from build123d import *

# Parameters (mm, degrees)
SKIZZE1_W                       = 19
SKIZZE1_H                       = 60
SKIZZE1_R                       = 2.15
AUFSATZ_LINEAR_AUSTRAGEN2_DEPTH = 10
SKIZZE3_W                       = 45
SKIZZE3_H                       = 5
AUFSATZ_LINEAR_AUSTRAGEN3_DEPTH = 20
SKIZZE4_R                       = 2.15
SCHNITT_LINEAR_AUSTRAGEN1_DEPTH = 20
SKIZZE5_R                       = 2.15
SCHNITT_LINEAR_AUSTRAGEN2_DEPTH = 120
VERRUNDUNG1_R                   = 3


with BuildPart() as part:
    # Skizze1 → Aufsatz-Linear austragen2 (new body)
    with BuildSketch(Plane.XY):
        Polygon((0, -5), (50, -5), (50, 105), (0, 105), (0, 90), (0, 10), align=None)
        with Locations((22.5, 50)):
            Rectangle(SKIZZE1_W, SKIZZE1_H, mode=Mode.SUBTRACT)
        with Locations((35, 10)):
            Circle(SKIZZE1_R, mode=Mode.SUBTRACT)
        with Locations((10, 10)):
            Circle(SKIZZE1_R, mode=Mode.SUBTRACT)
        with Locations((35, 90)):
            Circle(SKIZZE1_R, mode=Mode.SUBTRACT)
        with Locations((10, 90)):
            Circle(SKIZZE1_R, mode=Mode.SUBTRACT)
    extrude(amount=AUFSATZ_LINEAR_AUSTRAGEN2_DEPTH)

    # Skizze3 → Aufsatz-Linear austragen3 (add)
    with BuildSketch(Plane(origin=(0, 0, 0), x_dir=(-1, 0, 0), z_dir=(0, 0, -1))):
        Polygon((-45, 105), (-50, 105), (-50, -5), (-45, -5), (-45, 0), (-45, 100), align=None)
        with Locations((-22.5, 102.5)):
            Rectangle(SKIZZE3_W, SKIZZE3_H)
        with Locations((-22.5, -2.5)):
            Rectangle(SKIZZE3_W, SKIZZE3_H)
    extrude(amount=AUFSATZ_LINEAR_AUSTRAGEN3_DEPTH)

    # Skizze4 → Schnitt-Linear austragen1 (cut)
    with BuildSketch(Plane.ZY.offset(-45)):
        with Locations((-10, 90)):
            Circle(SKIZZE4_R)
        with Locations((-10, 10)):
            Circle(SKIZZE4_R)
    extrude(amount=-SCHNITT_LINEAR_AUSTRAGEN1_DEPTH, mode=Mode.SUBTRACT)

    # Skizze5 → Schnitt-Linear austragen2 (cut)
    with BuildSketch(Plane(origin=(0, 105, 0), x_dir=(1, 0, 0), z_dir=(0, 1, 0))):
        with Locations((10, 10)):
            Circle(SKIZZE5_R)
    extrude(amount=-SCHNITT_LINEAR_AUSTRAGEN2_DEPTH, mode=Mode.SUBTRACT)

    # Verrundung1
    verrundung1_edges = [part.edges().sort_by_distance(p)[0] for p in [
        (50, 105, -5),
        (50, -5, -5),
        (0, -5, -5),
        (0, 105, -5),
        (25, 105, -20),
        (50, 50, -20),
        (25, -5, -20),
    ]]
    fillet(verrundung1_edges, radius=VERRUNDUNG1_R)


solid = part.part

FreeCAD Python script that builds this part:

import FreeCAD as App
import Part
import Sketcher
from FreeCAD import Vector
Q = App.Units.Quantity


def edges_at(feature, points):
    """Names of the edges that pass closest to the given points."""
    edges = feature.Shape.Edges
    near = lambda p: min(range(len(edges)), key=lambda i: edges[i].distToShape(Part.Vertex(*p))[0])
    return sorted({f"Edge{near(p) + 1}" for p in points})

doc = App.newDocument("Part")
body = doc.addObject("PartDesign::Body", "Body")

sketch1 = body.newObject("Sketcher::SketchObject", "Sketch")
sketch1.AttachmentSupport = (doc.getObject("XY_Plane"), [""])
sketch1.MapMode = "FlatFace"
sketch1.addGeometry([
    Part.LineSegment(Vector(0, -5, 0), Vector(50, -5, 0)),
    Part.LineSegment(Vector(50, -5, 0), Vector(50, 105, 0)),
    Part.LineSegment(Vector(50, 105, 0), Vector(0, 105, 0)),
    Part.LineSegment(Vector(0, 105, 0), Vector(0, -5, 0)),
    Part.Circle(Vector(10, 10, 0), Vector(0, 0, 1), 2.15),
    Part.Circle(Vector(35, 10, 0), Vector(0, 0, 1), 2.15),
    Part.LineSegment(Vector(32, 20, 0), Vector(13, 20, 0)),
    Part.LineSegment(Vector(13, 20, 0), Vector(13, 80, 0)),
    Part.LineSegment(Vector(13, 80, 0), Vector(32, 80, 0)),
    Part.LineSegment(Vector(32, 80, 0), Vector(32, 20, 0)),
    Part.Circle(Vector(10, 90, 0), Vector(0, 0, 1), 2.15),
    Part.Circle(Vector(35, 90, 0), Vector(0, 0, 1), 2.15),
], False)
sketch1.addConstraint([
    Sketcher.Constraint("Coincident", 0, 2, 1, 1),
    Sketcher.Constraint("Coincident", 1, 2, 2, 1),
    Sketcher.Constraint("Coincident", 2, 2, 3, 1),
    Sketcher.Constraint("Coincident", 3, 2, 0, 1),
    Sketcher.Constraint("Coincident", 6, 2, 7, 1),
    Sketcher.Constraint("Coincident", 7, 2, 8, 1),
    Sketcher.Constraint("Coincident", 8, 2, 9, 1),
    Sketcher.Constraint("Coincident", 9, 2, 6, 1),
    Sketcher.Constraint("Horizontal", 0),
    Sketcher.Constraint("Vertical", 1),
    Sketcher.Constraint("Horizontal", 2),
    Sketcher.Constraint("Vertical", 3),
    Sketcher.Constraint("Horizontal", 6),
    Sketcher.Constraint("Vertical", 7),
    Sketcher.Constraint("Horizontal", 8),
    Sketcher.Constraint("Vertical", 9),
    Sketcher.Constraint("Equal", 4, 5),
    Sketcher.Constraint("Equal", 5, 10),
    Sketcher.Constraint("Equal", 10, 11),
    Sketcher.Constraint("PointOnObject", 2, 2, -2),
    Sketcher.Constraint("Horizontal", 4, 3, 5, 3),
    Sketcher.Constraint("Horizontal", 10, 3, 11, 3),
    Sketcher.Constraint("Vertical", 4, 3, 10, 3),
    Sketcher.Constraint("Vertical", 5, 3, 11, 3),
    Sketcher.Constraint("Diameter", 4, Q("4.3 mm")),
    Sketcher.Constraint("DistanceX", 0, 1, 0, 2, Q("50 mm")),
    Sketcher.Constraint("DistanceX", 6, 2, 6, 1, Q("19 mm")),
    Sketcher.Constraint("DistanceY", 1, 1, 1, 2, Q("110 mm")),
    Sketcher.Constraint("DistanceY", 7, 1, 7, 2, Q("60 mm")),
    Sketcher.Constraint("DistanceX", -1, 1, 4, 3, Q("10 mm")),
    Sketcher.Constraint("DistanceY", -1, 1, 4, 3, Q("10 mm")),
    Sketcher.Constraint("DistanceX", -1, 1, 5, 3, Q("35 mm")),
    Sketcher.Constraint("DistanceY", -1, 1, 10, 3, Q("90 mm")),
    Sketcher.Constraint("DistanceY", 0, 2, -1, 1, Q("5 mm")),
    Sketcher.Constraint("DistanceX", -1, 1, 6, 2, Q("13 mm")),
    Sketcher.Constraint("DistanceY", -1, 1, 6, 2, Q("20 mm")),
])
pad1 = body.newObject("PartDesign::Pad", "Pad")
pad1.Profile = sketch1
pad1.Length = 10

sketch2 = body.newObject("Sketcher::SketchObject", "Sketch001")
sketch2.AttachmentSupport = (doc.getObject("XY_Plane"), [""])
sketch2.MapMode = "FlatFace"
sketch2.addGeometry([
    Part.LineSegment(Vector(50, 105, 0), Vector(50, -5, 0)),
    Part.LineSegment(Vector(50, -5, 0), Vector(0, -5, 0)),
    Part.LineSegment(Vector(0, -5, 0), Vector(0, 0, 0)),
    Part.LineSegment(Vector(0, 0, 0), Vector(45, 0, 0)),
    Part.LineSegment(Vector(45, 0, 0), Vector(45, 100, 0)),
    Part.LineSegment(Vector(45, 100, 0), Vector(0, 100, 0)),
    Part.LineSegment(Vector(0, 100, 0), Vector(0, 105, 0)),
    Part.LineSegment(Vector(0, 105, 0), Vector(50, 105, 0)),
], False)
sketch2.addConstraint([
    Sketcher.Constraint("Coincident", 0, 2, 1, 1),
    Sketcher.Constraint("Coincident", 1, 2, 2, 1),
    Sketcher.Constraint("Coincident", 2, 2, 3, 1),
    Sketcher.Constraint("Coincident", 3, 2, 4, 1),
    Sketcher.Constraint("Coincident", 4, 2, 5, 1),
    Sketcher.Constraint("Coincident", 5, 2, 6, 1),
    Sketcher.Constraint("Coincident", 6, 2, 7, 1),
    Sketcher.Constraint("Coincident", 7, 2, 0, 1),
    Sketcher.Constraint("Vertical", 0),
    Sketcher.Constraint("Horizontal", 1),
    Sketcher.Constraint("Vertical", 2),
    Sketcher.Constraint("Horizontal", 3),
    Sketcher.Constraint("Vertical", 4),
    Sketcher.Constraint("Horizontal", 5),
    Sketcher.Constraint("Vertical", 6),
    Sketcher.Constraint("Horizontal", 7),
    Sketcher.Constraint("Coincident", 2, 2, -1, 1),
    Sketcher.Constraint("PointOnObject", 5, 2, -2),
    Sketcher.Constraint("Equal", 2, 6),
    Sketcher.Constraint("DistanceX", 1, 2, 1, 1, Q("50 mm")),
    Sketcher.Constraint("DistanceX", 3, 1, 3, 2, Q("45 mm")),
    Sketcher.Constraint("DistanceY", 0, 2, 0, 1, Q("110 mm")),
    Sketcher.Constraint("DistanceY", 2, 1, 2, 2, Q("5 mm")),
])
pad2 = body.newObject("PartDesign::Pad", "Pad001")
pad2.Profile = sketch2
pad2.Length = 20
pad2.Reversed = True

sketch3 = body.newObject("Sketcher::SketchObject", "Sketch002")
sketch3.AttachmentSupport = (doc.getObject("YZ_Plane"), [""])
sketch3.MapMode = "FlatFace"
sketch3.AttachmentOffset = App.Placement(Vector(0, 0, 45), App.Rotation())
sketch3.addGeometry([
    Part.Circle(Vector(90, -10, 0), Vector(0, 0, 1), 2.15),
    Part.Circle(Vector(10, -10, 0), Vector(0, 0, 1), 2.15),
], False)
sketch3.addConstraint([
    Sketcher.Constraint("Equal", 0, 1),
    Sketcher.Constraint("Horizontal", 0, 3, 1, 3),
    Sketcher.Constraint("Diameter", 0, Q("4.3 mm")),
    Sketcher.Constraint("DistanceX", -1, 1, 0, 3, Q("90 mm")),
    Sketcher.Constraint("DistanceY", 0, 3, -1, 1, Q("10 mm")),
    Sketcher.Constraint("DistanceX", -1, 1, 1, 3, Q("10 mm")),
])
pocket1 = body.newObject("PartDesign::Pocket", "Pocket")
pocket1.Profile = sketch3
pocket1.Length = 20
pocket1.Reversed = True

sketch4 = body.newObject("Sketcher::SketchObject", "Sketch003")
sketch4.AttachmentSupport = (doc.getObject("XZ_Plane"), [""])
sketch4.MapMode = "FlatFace"
sketch4.AttachmentOffset = App.Placement(Vector(0, 0, -105), App.Rotation())
sketch4.addGeometry(Part.Circle(Vector(10, -10, 0), Vector(0, 0, 1), 2.15), False)
sketch4.addConstraint([
    Sketcher.Constraint("Diameter", 0, Q("4.3 mm")),
    Sketcher.Constraint("DistanceX", -1, 1, 0, 3, Q("10 mm")),
    Sketcher.Constraint("DistanceY", 0, 3, -1, 1, Q("10 mm")),
])
pocket2 = body.newObject("PartDesign::Pocket", "Pocket001")
pocket2.Profile = sketch4
pocket2.Length = 120
pocket2.Reversed = True
doc.recompute()

fillet = body.newObject("PartDesign::Fillet", "Fillet")
fillet.Base = (pocket2, edges_at(pocket2, [
    (50, 105, -5),
    (50, -5, -5),
    (0, -5, -5),
    (0, 105, -5),
    (25, 105, -20),
    (50, 50, -20),
    (25, -5, -20),
]))
fillet.Radius = 3

doc.recompute()
